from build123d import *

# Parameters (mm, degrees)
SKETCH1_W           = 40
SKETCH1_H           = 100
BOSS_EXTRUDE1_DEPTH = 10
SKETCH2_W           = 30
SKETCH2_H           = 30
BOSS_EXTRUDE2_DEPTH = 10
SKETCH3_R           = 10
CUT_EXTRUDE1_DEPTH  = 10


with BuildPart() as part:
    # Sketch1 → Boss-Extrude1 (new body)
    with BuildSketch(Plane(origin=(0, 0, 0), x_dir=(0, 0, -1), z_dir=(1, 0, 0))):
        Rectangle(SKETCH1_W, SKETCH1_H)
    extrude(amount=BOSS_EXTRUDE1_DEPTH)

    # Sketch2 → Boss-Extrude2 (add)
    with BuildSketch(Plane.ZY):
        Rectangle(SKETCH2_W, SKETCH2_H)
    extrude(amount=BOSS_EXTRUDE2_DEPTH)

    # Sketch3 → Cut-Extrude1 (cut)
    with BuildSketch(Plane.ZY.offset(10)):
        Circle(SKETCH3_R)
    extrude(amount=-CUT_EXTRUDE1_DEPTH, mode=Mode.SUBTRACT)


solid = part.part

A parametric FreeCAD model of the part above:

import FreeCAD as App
import Part
import Sketcher
Q = App.Units.Quantity

doc = App.newDocument("Part")
body = doc.addObject("PartDesign::Body", "Body")

# Sketch on YZ plane
sketch1 = body.newObject("Sketcher::SketchObject", "Sketch")
sketch1.AttachmentSupport = (doc.getObject("YZ_Plane"), [""])
sketch1.MapMode = "FlatFace"
sketch1.addGeometry([
    Part.LineSegment(App.Vector(50, 20, 0), App.Vector(-50, 20, 0)),
    Part.LineSegment(App.Vector(-50, 20, 0), App.Vector(-50, -20, 0)),
    Part.LineSegment(App.Vector(-50, -20, 0), App.Vector(50, -20, 0)),
    Part.LineSegment(App.Vector(50, -20, 0), App.Vector(50, 20, 0)),
], False)
sketch1.addConstraint([
    Sketcher.Constraint("Coincident", 0, 2, 1, 1),
    Sketcher.Constraint("Coincident", 1, 2, 2, 1),
    Sketcher.Constraint("Coincident", 2, 2, 3, 1),
    Sketcher.Constraint("Coincident", 3, 2, 0, 1),
    Sketcher.Constraint("Horizontal", 0),
    Sketcher.Constraint("Vertical", 1),
    Sketcher.Constraint("Horizontal", 2),
    Sketcher.Constraint("Vertical", 3),
    Sketcher.Constraint("Symmetric", 0, 2, 2, 2, -1, 1),
    Sketcher.Constraint("DistanceX", 0, 2, 0, 1, Q("100 mm")),
    Sketcher.Constraint("DistanceY", 1, 2, 1, 1, Q("40 mm")),
])
pad1 = body.newObject("PartDesign::Pad", "Pad")
pad1.Profile = sketch1
pad1.Length = 10

# Sketch on YZ plane
sketch2 = body.newObject("Sketcher::SketchObject", "Sketch001")
sketch2.AttachmentSupport = (doc.getObject("YZ_Plane"), [""])
sketch2.MapMode = "FlatFace"
sketch2.addGeometry([
    Part.LineSegment(App.Vector(15, -15, 0), App.Vector(-15, -15, 0)),
    Part.LineSegment(App.Vector(-15, -15, 0), App.Vector(-15, 15, 0)),
    Part.LineSegment(App.Vector(-15, 15, 0), App.Vector(15, 15, 0)),
    Part.LineSegment(App.Vector(15, 15, 0), App.Vector(15, -15, 0)),
], False)
sketch2.addConstraint([
    Sketcher.Constraint("Coincident", 0, 2, 1, 1),
    Sketcher.Constraint("Coincident", 1, 2, 2, 1),
    Sketcher.Constraint("Coincident", 2, 2, 3, 1),
    Sketcher.Constraint("Coincident", 3, 2, 0, 1),
    Sketcher.Constraint("Horizontal", 0),
    Sketcher.Constraint("Vertical", 1),
    Sketcher.Constraint("Horizontal", 2),
    Sketcher.Constraint("Vertical", 3),
    Sketcher.Constraint("Symmetric", 0, 2, 2, 2, -1, 1),
    Sketcher.Constraint("Equal", 2, 1),
    Sketcher.Constraint("DistanceX", 0, 2, 0, 1, Q("30 mm")),
])
pad2 = body.newObject("PartDesign::Pad", "Pad001")
pad2.Profile = sketch2
pad2.Length = 10
pad2.Reversed = True

# Sketch on YZ plane
sketch3 = body.newObject("Sketcher::SketchObject", "Sketch002")
sketch3.AttachmentSupport = (doc.getObject("YZ_Plane"), [""])
sketch3.MapMode = "FlatFace"
sketch3.AttachmentOffset = App.Placement(App.Vector(0, 0, -10), App.Rotation())
sketch3.addGeometry(Part.Circle(App.Vector(0, 0, 0), App.Vector(0, 0, 1), 10), False)
sketch3.addConstraint([
    Sketcher.Constraint("Coincident", 0, 3, -1, 1),
    Sketcher.Constraint("Diameter", 0, Q("20 mm")),
])
pocket1 = body.newObject("PartDesign::Pocket", "Pocket")
pocket1.Profile = sketch3
pocket1.Length = 10
pocket1.Reversed = True

doc.recompute()
